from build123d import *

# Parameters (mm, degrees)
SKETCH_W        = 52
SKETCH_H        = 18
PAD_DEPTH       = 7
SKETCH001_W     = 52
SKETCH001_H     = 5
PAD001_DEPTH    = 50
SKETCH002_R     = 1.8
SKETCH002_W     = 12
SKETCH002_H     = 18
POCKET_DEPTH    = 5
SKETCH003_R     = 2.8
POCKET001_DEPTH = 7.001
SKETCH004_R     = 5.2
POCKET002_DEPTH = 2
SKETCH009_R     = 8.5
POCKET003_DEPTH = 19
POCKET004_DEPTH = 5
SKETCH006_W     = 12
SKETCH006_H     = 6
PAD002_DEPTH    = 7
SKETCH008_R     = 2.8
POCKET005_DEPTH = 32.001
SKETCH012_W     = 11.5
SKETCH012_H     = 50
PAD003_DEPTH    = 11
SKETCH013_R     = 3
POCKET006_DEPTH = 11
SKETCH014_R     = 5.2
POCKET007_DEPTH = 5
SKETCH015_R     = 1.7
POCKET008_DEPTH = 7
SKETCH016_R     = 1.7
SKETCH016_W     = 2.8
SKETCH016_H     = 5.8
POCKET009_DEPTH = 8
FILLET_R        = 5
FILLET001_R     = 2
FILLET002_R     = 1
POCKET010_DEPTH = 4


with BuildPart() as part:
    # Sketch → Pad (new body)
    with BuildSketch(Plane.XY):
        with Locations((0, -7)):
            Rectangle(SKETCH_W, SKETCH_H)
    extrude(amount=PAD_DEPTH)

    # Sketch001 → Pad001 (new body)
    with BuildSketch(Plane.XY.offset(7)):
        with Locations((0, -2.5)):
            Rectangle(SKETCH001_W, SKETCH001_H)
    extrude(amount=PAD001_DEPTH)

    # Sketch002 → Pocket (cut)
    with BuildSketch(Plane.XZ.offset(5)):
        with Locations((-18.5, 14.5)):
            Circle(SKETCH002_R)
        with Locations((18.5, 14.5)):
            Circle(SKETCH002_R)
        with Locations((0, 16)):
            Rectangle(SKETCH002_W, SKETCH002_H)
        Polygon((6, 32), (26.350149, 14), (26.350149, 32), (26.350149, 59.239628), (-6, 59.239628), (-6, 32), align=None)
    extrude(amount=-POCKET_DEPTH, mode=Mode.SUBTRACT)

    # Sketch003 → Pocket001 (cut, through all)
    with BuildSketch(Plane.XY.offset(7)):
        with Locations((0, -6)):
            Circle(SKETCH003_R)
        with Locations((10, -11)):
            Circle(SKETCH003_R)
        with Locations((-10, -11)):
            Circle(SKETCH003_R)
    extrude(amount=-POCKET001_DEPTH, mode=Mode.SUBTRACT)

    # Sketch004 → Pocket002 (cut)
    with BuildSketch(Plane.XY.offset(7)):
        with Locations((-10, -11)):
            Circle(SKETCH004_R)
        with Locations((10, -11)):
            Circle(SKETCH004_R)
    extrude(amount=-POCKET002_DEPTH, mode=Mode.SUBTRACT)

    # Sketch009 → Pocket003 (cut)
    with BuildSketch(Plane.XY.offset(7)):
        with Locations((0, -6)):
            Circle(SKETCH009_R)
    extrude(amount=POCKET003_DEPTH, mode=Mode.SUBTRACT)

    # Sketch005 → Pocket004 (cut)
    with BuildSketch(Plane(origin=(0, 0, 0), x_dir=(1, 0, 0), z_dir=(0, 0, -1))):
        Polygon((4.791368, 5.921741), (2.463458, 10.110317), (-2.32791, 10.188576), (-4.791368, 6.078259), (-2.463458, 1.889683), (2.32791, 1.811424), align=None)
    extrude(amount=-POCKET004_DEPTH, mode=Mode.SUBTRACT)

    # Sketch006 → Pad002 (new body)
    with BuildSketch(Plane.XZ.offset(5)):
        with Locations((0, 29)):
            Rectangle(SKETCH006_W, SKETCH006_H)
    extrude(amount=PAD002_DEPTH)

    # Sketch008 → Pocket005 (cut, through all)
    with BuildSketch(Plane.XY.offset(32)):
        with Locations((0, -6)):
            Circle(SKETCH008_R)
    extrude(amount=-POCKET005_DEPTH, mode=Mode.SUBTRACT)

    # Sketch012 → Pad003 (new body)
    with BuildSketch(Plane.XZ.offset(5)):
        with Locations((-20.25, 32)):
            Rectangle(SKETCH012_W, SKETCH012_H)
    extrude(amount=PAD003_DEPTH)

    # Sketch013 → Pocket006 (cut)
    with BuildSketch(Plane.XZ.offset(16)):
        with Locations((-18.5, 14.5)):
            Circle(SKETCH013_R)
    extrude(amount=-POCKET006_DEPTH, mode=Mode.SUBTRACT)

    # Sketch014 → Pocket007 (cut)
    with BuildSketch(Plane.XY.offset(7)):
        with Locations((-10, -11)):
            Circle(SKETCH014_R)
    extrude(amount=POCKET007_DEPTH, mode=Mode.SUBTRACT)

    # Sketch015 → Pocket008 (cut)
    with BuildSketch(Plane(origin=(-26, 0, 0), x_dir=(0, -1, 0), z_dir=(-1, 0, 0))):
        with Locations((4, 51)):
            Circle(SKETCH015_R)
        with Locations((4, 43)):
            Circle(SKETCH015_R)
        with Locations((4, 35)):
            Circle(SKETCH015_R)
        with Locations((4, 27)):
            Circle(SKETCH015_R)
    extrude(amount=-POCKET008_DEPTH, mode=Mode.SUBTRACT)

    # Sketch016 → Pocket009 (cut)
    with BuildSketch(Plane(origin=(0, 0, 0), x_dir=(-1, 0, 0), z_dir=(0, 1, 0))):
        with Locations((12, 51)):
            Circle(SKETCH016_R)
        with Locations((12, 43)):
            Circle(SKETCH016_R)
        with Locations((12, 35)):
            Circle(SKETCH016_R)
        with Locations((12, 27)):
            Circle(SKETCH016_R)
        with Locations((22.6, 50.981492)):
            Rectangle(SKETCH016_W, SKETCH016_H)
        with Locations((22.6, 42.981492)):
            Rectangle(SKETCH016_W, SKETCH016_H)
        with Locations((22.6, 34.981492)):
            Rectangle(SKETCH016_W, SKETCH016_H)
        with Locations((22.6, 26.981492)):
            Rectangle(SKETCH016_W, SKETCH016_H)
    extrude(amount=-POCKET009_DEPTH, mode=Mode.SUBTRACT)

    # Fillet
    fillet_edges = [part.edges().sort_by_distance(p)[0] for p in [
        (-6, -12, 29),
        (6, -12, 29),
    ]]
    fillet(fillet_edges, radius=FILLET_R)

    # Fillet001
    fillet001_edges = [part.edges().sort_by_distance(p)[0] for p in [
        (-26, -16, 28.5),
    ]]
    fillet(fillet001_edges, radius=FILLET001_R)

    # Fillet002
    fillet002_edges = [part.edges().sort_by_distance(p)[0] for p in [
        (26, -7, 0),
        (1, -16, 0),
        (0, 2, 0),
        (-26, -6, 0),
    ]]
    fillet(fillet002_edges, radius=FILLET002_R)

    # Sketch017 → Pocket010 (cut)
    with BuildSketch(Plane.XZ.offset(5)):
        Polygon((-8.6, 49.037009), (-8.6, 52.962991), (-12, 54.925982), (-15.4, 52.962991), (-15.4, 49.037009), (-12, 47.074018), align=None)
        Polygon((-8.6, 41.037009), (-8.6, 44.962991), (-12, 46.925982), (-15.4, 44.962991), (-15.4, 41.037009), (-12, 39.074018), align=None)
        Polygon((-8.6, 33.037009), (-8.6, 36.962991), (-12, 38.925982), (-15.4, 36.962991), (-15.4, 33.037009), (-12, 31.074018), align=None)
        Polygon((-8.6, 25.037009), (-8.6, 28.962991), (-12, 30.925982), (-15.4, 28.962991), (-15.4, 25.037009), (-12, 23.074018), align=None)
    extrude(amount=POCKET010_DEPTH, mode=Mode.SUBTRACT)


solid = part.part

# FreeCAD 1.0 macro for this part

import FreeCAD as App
import Part
import Sketcher
from FreeCAD import Vector
Q = App.Units.Quantity


def edges_at(feature, points):
    """Names of the edges that pass closest to the given points."""
    edges = feature.Shape.Edges
    near = lambda p: min(range(len(edges)), key=lambda i: edges[i].distToShape(Part.Vertex(*p))[0])
    return sorted({f"Edge{near(p) + 1}" for p in points})

doc = App.newDocument("Part")
body = doc.addObject("PartDesign::Body", "Body")

sketch1 = body.newObject("Sketcher::SketchObject", "Sketch")
sketch1.AttachmentSupport = (doc.getObject("XY_Plane"), [""])
sketch1.MapMode = "FlatFace"
sketch1.addGeometry(Part.LineSegment(Vector(-26, 2, 0), Vector(-26, -16, 0)), False)
sketch1.addGeometry(Part.LineSegment(Vector(-26, -16, 0), Vector(26, -16, 0)), False)
sketch1.addGeometry(Part.LineSegment(Vector(26, -16, 0), Vector(26, 2, 0)), False)
sketch1.addGeometry(Part.LineSegment(Vector(26, 2, 0), Vector(-26, 2, 0)), False)
sketch1.addConstraint(Sketcher.Constraint("Coincident", 0, 2, 1, 1))
sketch1.addConstraint(Sketcher.Constraint("Coincident", 1, 2, 2, 1))
sketch1.addConstraint(Sketcher.Constraint("Coincident", 2, 2, 3, 1))
sketch1.addConstraint(Sketcher.Constraint("Coincident", 3, 2, 0, 1))
sketch1.addConstraint(Sketcher.Constraint("Vertical", 0))
sketch1.addConstraint(Sketcher.Constraint("Horizontal", 1))
sketch1.addConstraint(Sketcher.Constraint("Vertical", 2))
sketch1.addConstraint(Sketcher.Constraint("Horizontal", 3))
sketch1.addConstraint(Sketcher.Constraint("DistanceX", 1, 1, 1, 2, 52.0))
sketch1.addConstraint(Sketcher.Constraint("DistanceY", 0, 2, 0, 1, 18.0))
sketch1.addConstraint(Sketcher.Constraint("DistanceX", 0, 2, -1, 1, 26.0))
sketch1.addConstraint(Sketcher.Constraint("DistanceY", 0, 2, -1, 1, 16.0))
pad1 = body.newObject("PartDesign::Pad", "Pad")
pad1.Profile = sketch1
pad1.Length = 7

sketch2 = body.newObject("Sketcher::SketchObject", "Sketch001")
sketch2.AttachmentSupport = (doc.getObject("XY_Plane"), [""])
sketch2.MapMode = "FlatFace"
sketch2.AttachmentOffset = App.Placement(Vector(0, 0, 7), App.Rotation())
sketch2.addGeometry(Part.LineSegment(Vector(-26, 0, 0), Vector(-26, -5, 0)), False)
sketch2.addGeometry(Part.LineSegment(Vector(-26, -5, 0), Vector(26, -5, 0)), False)
sketch2.addGeometry(Part.LineSegment(Vector(26, -5, 0), Vector(26, 0, 0)), False)
sketch2.addGeometry(Part.LineSegment(Vector(26, 0, 0), Vector(-26, 0, 0)), False)
sketch2.addConstraint(Sketcher.Constraint("Coincident", 0, 2, 1, 1))
sketch2.addConstraint(Sketcher.Constraint("Coincident", 1, 2, 2, 1))
sketch2.addConstraint(Sketcher.Constraint("Coincident", 2, 2, 3, 1))
sketch2.addConstraint(Sketcher.Constraint("Coincident", 3, 2, 0, 1))
sketch2.addConstraint(Sketcher.Constraint("Vertical", 0))
sketch2.addConstraint(Sketcher.Constraint("Horizontal", 1))
sketch2.addConstraint(Sketcher.Constraint("Vertical", 2))
sketch2.addConstraint(Sketcher.Constraint("Horizontal", 3))
sketch2.addConstraint(Sketcher.Constraint("Symmetric", 2, 2, 3, 2, -1, 1))
sketch2.addConstraint(Sketcher.Constraint("DistanceX", 1, 1, 1, 2, 52.0))
sketch2.addConstraint(Sketcher.Constraint("DistanceY", 0, 2, 0, 1, 5.0))
pad2 = body.newObject("PartDesign::Pad", "Pad001")
pad2.Profile = sketch2
pad2.Length = 50

sketch3 = body.newObject("Sketcher::SketchObject", "Sketch002")
sketch3.AttachmentSupport = (doc.getObject("XZ_Plane"), [""])
sketch3.MapMode = "FlatFace"
sketch3.AttachmentOffset = App.Placement(Vector(0, 0, 5), App.Rotation())
sketch3.addGeometry(Part.Circle(Vector(-18.5, 14.5, 0), Vector(0, 0, 1), 1.8), False)
sketch3.addGeometry(Part.Circle(Vector(18.5, 14.5, 0), Vector(0, 0, 1), 1.8), False)
sketch3.addGeometry(Part.LineSegment(Vector(-6, 25, 0), Vector(-6, 7, 0)), False)
sketch3.addGeometry(Part.LineSegment(Vector(-6, 7, 0), Vector(6, 7, 0)), False)
sketch3.addGeometry(Part.LineSegment(Vector(6, 7, 0), Vector(6, 25, 0)), False)
sketch3.addGeometry(Part.LineSegment(Vector(6, 25, 0), Vector(-6, 25, 0)), False)
sketch3.addGeometry(Part.LineSegment(Vector(6, 32, 0), Vector(26.4, 14, 0)), False)
sketch3.addGeometry(Part.LineSegment(Vector(26.4, 14, 0), Vector(26.4, 59.2, 0)), False)
sketch3.addGeometry(Part.LineSegment(Vector(26.4, 59.2, 0), Vector(-6, 59.2, 0)), False)
sketch3.addGeometry(Part.LineSegment(Vector(-6, 59.2, 0), Vector(-6, 32, 0)), False)
sketch3.addGeometry(Part.LineSegment(Vector(-6, 32, 0), Vector(6, 32, 0)), False)
sketch3.addConstraint(Sketcher.Constraint("Coincident", 2, 2, 3, 1))
sketch3.addConstraint(Sketcher.Constraint("Coincident", 3, 2, 4, 1))
sketch3.addConstraint(Sketcher.Constraint("Coincident", 4, 2, 5, 1))
sketch3.addConstraint(Sketcher.Constraint("Coincident", 5, 2, 2, 1))
sketch3.addConstraint(Sketcher.Constraint("Coincident", 6, 2, 7, 1))
sketch3.addConstraint(Sketcher.Constraint("Coincident", 7, 2, 8, 1))
sketch3.addConstraint(Sketcher.Constraint("Coincident", 8, 2, 9, 1))
sketch3.addConstraint(Sketcher.Constraint("Coincident", 9, 2, 10, 1))
sketch3.addConstraint(Sketcher.Constraint("Coincident", 10, 2, 6, 1))
sketch3.addConstraint(Sketcher.Constraint("Vertical", 2))
sketch3.addConstraint(Sketcher.Constraint("Horizontal", 3))
sketch3.addConstraint(Sketcher.Constraint("Vertical", 4))
sketch3.addConstraint(Sketcher.Constraint("Horizontal", 5))
sketch3.addConstraint(Sketcher.Constraint("Vertical", 7))
sketch3.addConstraint(Sketcher.Constraint("Horizontal", 8))
sketch3.addConstraint(Sketcher.Constraint("Vertical", 9))
sketch3.addConstraint(Sketcher.Constraint("Horizontal", 10))
sketch3.addConstraint(Sketcher.Constraint("Equal", 0, 1))
sketch3.addConstraint(Sketcher.Constraint("Symmetric", 0, 3, 1, 3, -2))
sketch3.addConstraint(Sketcher.Constraint("Vertical", 5, 2, 8, 2))
sketch3.addConstraint(Sketcher.Constraint("Vertical", 4, 2, 10, 2))
sketch3.addConstraint(Sketcher.Constraint("Diameter", 0, 3.6))
sketch3.addConstraint(Sketcher.Constraint("DistanceX", 3, 1, 3, 2, 12.0))
sketch3.addConstraint(Sketcher.Constraint("DistanceY", 2, 2, 2, 1, 18.0))
sketch3.addConstraint(Sketcher.Constraint("DistanceX", 2, 2, -1, 1, 6.0))
sketch3.addConstraint(Sketcher.Constraint("DistanceY", -1, 1, 2, 2, 7.0))
sketch3.addConstraint(Sketcher.Constraint("DistanceY", -1, 1, 6, 2, 14.0))
sketch3.addConstraint(Sketcher.Constraint("DistanceY", -1, 1, 9, 2, 32.0))
sketch3.addConstraint(Sketcher.Constraint("DistanceX", 0, 3, 1, 3, 37.0))
sketch3.addConstraint(Sketcher.Constraint("DistanceY", -1, 1, 0, 3, 14.5))
sketch3.addConstraint(Sketcher.Constraint("DistanceX", 8, 2, 8, 1, 32.350149))
sketch3.addConstraint(Sketcher.Constraint("DistanceY", 7, 1, 7, 2, 45.239628))
pocket1 = body.newObject("PartDesign::Pocket", "Pocket")
pocket1.Profile = sketch3
pocket1.Length = 5

sketch4 = body.newObject("Sketcher::SketchObject", "Sketch003")
sketch4.AttachmentSupport = (doc.getObject("XY_Plane"), [""])
sketch4.MapMode = "FlatFace"
sketch4.AttachmentOffset = App.Placement(Vector(0, 0, 7), App.Rotation())
sketch4.addGeometry(Part.Circle(Vector(0, -6, 0), Vector(0, 0, 1), 2.8), False)
sketch4.addGeometry(Part.Circle(Vector(10, -11, 0), Vector(0, 0, 1), 2.8), False)
sketch4.addGeometry(Part.Circle(Vector(-10, -11, 0), Vector(0, 0, 1), 2.8), False)
sketch4.addConstraint(Sketcher.Constraint("Equal", 0, 1))
sketch4.addConstraint(Sketcher.Constraint("Equal", 1, 2))
sketch4.addConstraint(Sketcher.Constraint("Symmetric", 1, 3, 2, 3, -2))
sketch4.addConstraint(Sketcher.Constraint("PointOnObject", 0, 3, -2))
sketch4.addConstraint(Sketcher.Constraint("Diameter", 0, 5.6))
sketch4.addConstraint(Sketcher.Constraint("DistanceY", 0, 3, -1, 1, 6.0))
sketch4.addConstraint(Sketcher.Constraint("DistanceX", -1, 1, 1, 3, 10.0))
sketch4.addConstraint(Sketcher.Constraint("DistanceY", 1, 3, -1, 1, 11.0))
pocket2 = body.newObject("PartDesign::Pocket", "Pocket001")
pocket2.Profile = sketch4
pocket2.Type = "ThroughAll"

sketch5 = body.newObject("Sketcher::SketchObject", "Sketch004")
sketch5.AttachmentSupport = (doc.getObject("XY_Plane"), [""])
sketch5.MapMode = "FlatFace"
sketch5.AttachmentOffset = App.Placement(Vector(0, 0, 7), App.Rotation())
sketch5.addGeometry(Part.Circle(Vector(-10, -11, 0), Vector(0, 0, 1), 5), False)
sketch5.addGeometry(Part.Circle(Vector(10, -11, 0), Vector(0, 0, 1), 5), False)
sketch5.addConstraint(Sketcher.Constraint("Equal", 0, 1))
sketch5.addConstraint(Sketcher.Constraint("Symmetric", 0, 3, 1, 3, -2))
sketch5.addConstraint(Sketcher.Constraint("Diameter", 0, 10.4))
sketch5.addConstraint(Sketcher.Constraint("DistanceX", 0, 3, -1, 1, 10.0))
sketch5.addConstraint(Sketcher.Constraint("DistanceY", 0, 3, -1, 1, 11.0))
pocket3 = body.newObject("PartDesign::Pocket", "Pocket002")
pocket3.Profile = sketch5
pocket3.Length = 2

sketch6 = body.newObject("Sketcher::SketchObject", "Sketch005")
sketch6.AttachmentSupport = (doc.getObject("XY_Plane"), [""])
sketch6.MapMode = "FlatFace"
sketch6.AttachmentOffset = App.Placement(Vector(0, 0, 7), App.Rotation())
sketch6.addGeometry(Part.Circle(Vector(0, -6, 0), Vector(0, 0, 1), 8), False)
sketch6.addConstraint(Sketcher.Constraint("PointOnObject", 0, 3, -2))
sketch6.addConstraint(Sketcher.Constraint("Diameter", 0, 17.0))
sketch6.addConstraint(Sketcher.Constraint("DistanceY", 0, 3, -1, 1, 6.0))
pocket4 = body.newObject("PartDesign::Pocket", "Pocket003")
pocket4.Profile = sketch6
pocket4.Length = 19
pocket4.Reversed = True

sketch7 = body.newObject("Sketcher::SketchObject", "Sketch006")
sketch7.AttachmentSupport = (doc.getObject("XY_Plane"), [""])
sketch7.MapMode = "FlatFace"
sketch7.addGeometry(Part.LineSegment(Vector(4.8, -5.9, 0), Vector(2.5, -10.1, 0)), False)
sketch7.addGeometry(Part.LineSegment(Vector(2.5, -10.1, 0), Vector(-2.3, -10.2, 0)), False)
sketch7.addGeometry(Part.LineSegment(Vector(-2.3, -10.2, 0), Vector(-4.8, -6.1, 0)), False)
sketch7.addGeometry(Part.LineSegment(Vector(-4.8, -6.1, 0), Vector(-2.5, -1.9, 0)), False)
sketch7.addGeometry(Part.LineSegment(Vector(-2.5, -1.9, 0), Vector(2.3, -1.8, 0)), False)
sketch7.addGeometry(Part.LineSegment(Vector(2.3, -1.8, 0), Vector(4.8, -5.9, 0)), False)
sketch7.addConstraint(Sketcher.Constraint("Coincident", 0, 2, 1, 1))
sketch7.addConstraint(Sketcher.Constraint("Coincident", 1, 2, 2, 1))
sketch7.addConstraint(Sketcher.Constraint("Coincident", 2, 2, 3, 1))
sketch7.addConstraint(Sketcher.Constraint("Coincident", 3, 2, 4, 1))
sketch7.addConstraint(Sketcher.Constraint("Coincident", 4, 2, 5, 1))
sketch7.addConstraint(Sketcher.Constraint("Coincident", 5, 2, 0, 1))
sketch7.addConstraint(Sketcher.Constraint("Parallel", 0, 3))
sketch7.addConstraint(Sketcher.Constraint("Parallel", 1, 4))
sketch7.addConstraint(Sketcher.Constraint("Parallel", 2, 5))
sketch7.addConstraint(Sketcher.Constraint("Equal", 0, 1))
sketch7.addConstraint(Sketcher.Constraint("Equal", 1, 2))
sketch7.addConstraint(Sketcher.Constraint("Equal", 2, 3))
sketch7.addConstraint(Sketcher.Constraint("DistanceX", -1, 1, 0, 2, 2.463458))
sketch7.addConstraint(Sketcher.Constraint("DistanceX", 1, 2, -1, 1, 2.32791))
sketch7.addConstraint(Sketcher.Constraint("DistanceX", 2, 2, -1, 1, 4.791368))
sketch7.addConstraint(Sketcher.Constraint("DistanceY", 2, 2, -1, 1, 6.078259))
sketch7.addConstraint(Sketcher.Constraint("DistanceX", 3, 2, -1, 1, 2.463458))
sketch7.addConstraint(Sketcher.Constraint("DistanceY", 5, 2, -1, 1, 5.921741))
pocket5 = body.newObject("PartDesign::Pocket", "Pocket004")
pocket5.Profile = sketch7
pocket5.Length = 5
pocket5.Reversed = True

sketch8 = body.newObject("Sketcher::SketchObject", "Sketch007")
sketch8.AttachmentSupport = (doc.getObject("XZ_Plane"), [""])
sketch8.MapMode = "FlatFace"
sketch8.AttachmentOffset = App.Placement(Vector(0, 0, 5), App.Rotation())
sketch8.addGeometry(Part.LineSegment(Vector(-6, 32, 0), Vector(-6, 26, 0)), False)
sketch8.addGeometry(Part.LineSegment(Vector(-6, 26, 0), Vector(6, 26, 0)), False)
sketch8.addGeometry(Part.LineSegment(Vector(6, 26, 0), Vector(6, 32, 0)), False)
sketch8.addGeometry(Part.LineSegment(Vector(6, 32, 0), Vector(-6, 32, 0)), False)
sketch8.addConstraint(Sketcher.Constraint("Coincident", 0, 2, 1, 1))
sketch8.addConstraint(Sketcher.Constraint("Coincident", 1, 2, 2, 1))
sketch8.addConstraint(Sketcher.Constraint("Coincident", 2, 2, 3, 1))
sketch8.addConstraint(Sketcher.Constraint("Coincident", 3, 2, 0, 1))
sketch8.addConstraint(Sketcher.Constraint("Vertical", 0))
sketch8.addConstraint(Sketcher.Constraint("Horizontal", 1))
sketch8.addConstraint(Sketcher.Constraint("Vertical", 2))
sketch8.addConstraint(Sketcher.Constraint("Horizontal", 3))
sketch8.addConstraint(Sketcher.Constraint("DistanceX", 1, 1, 1, 2, 12.0))
sketch8.addConstraint(Sketcher.Constraint("DistanceY", 0, 2, 0, 1, 6.0))
sketch8.addConstraint(Sketcher.Constraint("DistanceX", 0, 2, -1, 1, 6.0))
sketch8.addConstraint(Sketcher.Constraint("DistanceY", -1, 1, 0, 2, 26.0))
pad3 = body.newObject("PartDesign::Pad", "Pad002")
pad3.Profile = sketch8
pad3.Length = 7

sketch9 = body.newObject("Sketcher::SketchObject", "Sketch008")
sketch9.AttachmentSupport = (doc.getObject("XY_Plane"), [""])
sketch9.MapMode = "FlatFace"
sketch9.AttachmentOffset = App.Placement(Vector(0, 0, 32), App.Rotation())
sketch9.addGeometry(Part.Circle(Vector(0, -6, 0), Vector(0, 0, 1), 2.8), False)
sketch9.addConstraint(Sketcher.Constraint("PointOnObject", 0, 3, -2))
sketch9.addConstraint(Sketcher.Constraint("Diameter", 0, 5.6))
sketch9.addConstraint(Sketcher.Constraint("DistanceY", 0, 3, -1, 1, 6.0))
pocket6 = body.newObject("PartDesign::Pocket", "Pocket005")
pocket6.Profile = sketch9
pocket6.Type = "ThroughAll"

sketch10 = body.newObject("Sketcher::SketchObject", "Sketch009")
sketch10.AttachmentSupport = (doc.getObject("XZ_Plane"), [""])
sketch10.MapMode = "FlatFace"
sketch10.AttachmentOffset = App.Placement(Vector(0, 0, 5), App.Rotation())
sketch10.addGeometry(Part.LineSegment(Vector(-26, 57, 0), Vector(-26, 7, 0)), False)
sketch10.addGeometry(Part.LineSegment(Vector(-26, 7, 0), Vector(-14, 7, 0)), False)
sketch10.addGeometry(Part.LineSegment(Vector(-14, 7, 0), Vector(-14, 57, 0)), False)
sketch10.addGeometry(Part.LineSegment(Vector(-14, 57, 0), Vector(-26, 57, 0)), False)
sketch10.addConstraint(Sketcher.Constraint("Coincident", 0, 2, 1, 1))
sketch10.addConstraint(Sketcher.Constraint("Coincident", 1, 2, 2, 1))
sketch10.addConstraint(Sketcher.Constraint("Coincident", 2, 2, 3, 1))
sketch10.addConstraint(Sketcher.Constraint("Coincident", 3, 2, 0, 1))
sketch10.addConstraint(Sketcher.Constraint("Vertical", 0))
sketch10.addConstraint(Sketcher.Constraint("Horizontal", 1))
sketch10.addConstraint(Sketcher.Constraint("Vertical", 2))
sketch10.addConstraint(Sketcher.Constraint("Horizontal", 3))
sketch10.addConstraint(Sketcher.Constraint("DistanceY", 0, 2, 0, 1, 50.0))
sketch10.addConstraint(Sketcher.Constraint("DistanceX", 1, 1, 1, 2, 11.5))
sketch10.addConstraint(Sketcher.Constraint("DistanceX", 0, 2, -1, 1, 26.0))
sketch10.addConstraint(Sketcher.Constraint("DistanceY", -1, 1, 0, 2, 7.0))
pad4 = body.newObject("PartDesign::Pad", "Pad003")
pad4.Profile = sketch10
pad4.Length = 11

sketch11 = body.newObject("Sketcher::SketchObject", "Sketch010")
sketch11.AttachmentSupport = (doc.getObject("XZ_Plane"), [""])
sketch11.MapMode = "FlatFace"
sketch11.AttachmentOffset = App.Placement(Vector(0, 0, 16), App.Rotation())
sketch11.addGeometry(Part.Circle(Vector(-18.5, 14.5, 0), Vector(0, 0, 1), 3), False)
sketch11.addConstraint(Sketcher.Constraint("Diameter", 0, 6.0))
sketch11.addConstraint(Sketcher.Constraint("DistanceX", 0, 3, -1, 1, 18.5))
sketch11.addConstraint(Sketcher.Constraint("DistanceY", -1, 1, 0, 3, 14.5))
pocket7 = body.newObject("PartDesign::Pocket", "Pocket006")
pocket7.Profile = sketch11
pocket7.Length = 11

sketch12 = body.newObject("Sketcher::SketchObject", "Sketch011")
sketch12.AttachmentSupport = (doc.getObject("XY_Plane"), [""])
sketch12.MapMode = "FlatFace"
sketch12.AttachmentOffset = App.Placement(Vector(0, 0, 7), App.Rotation())
sketch12.addGeometry(Part.Circle(Vector(-10, -11, 0), Vector(0, 0, 1), 5), False)
sketch12.addConstraint(Sketcher.Constraint("Diameter", 0, 10.4))
sketch12.addConstraint(Sketcher.Constraint("DistanceX", 0, 3, -1, 1, 10.0))
sketch12.addConstraint(Sketcher.Constraint("DistanceY", 0, 3, -1, 1, 11.0))
pocket8 = body.newObject("PartDesign::Pocket", "Pocket007")
pocket8.Profile = sketch12
pocket8.Length = 5
pocket8.Reversed = True

sketch13 = body.newObject("Sketcher::SketchObject", "Sketch012")
sketch13.AttachmentSupport = (doc.getObject("YZ_Plane"), [""])
sketch13.MapMode = "FlatFace"
sketch13.AttachmentOffset = App.Placement(Vector(0, 0, -26), App.Rotation())
sketch13.addGeometry(Part.Circle(Vector(-4, 51, 0), Vector(0, 0, 1), 1.7), False)
sketch13.addGeometry(Part.Circle(Vector(-4, 43, 0), Vector(0, 0, 1), 1.7), False)
sketch13.addGeometry(Part.Circle(Vector(-4, 35, 0), Vector(0, 0, 1), 1.7), False)
sketch13.addGeometry(Part.Circle(Vector(-4, 27, 0), Vector(0, 0, 1), 1.7), False)
sketch13.addConstraint(Sketcher.Constraint("Equal", 0, 1))
sketch13.addConstraint(Sketcher.Constraint("Equal", 1, 2))
sketch13.addConstraint(Sketcher.Constraint("Equal", 2, 3))
sketch13.addConstraint(Sketcher.Constraint("Vertical", 0, 3, 1, 3))
sketch13.addConstraint(Sketcher.Constraint("Vertical", 1, 3, 2, 3))
sketch13.addConstraint(Sketcher.Constraint("Vertical", 2, 3, 3, 3))
sketch13.addConstraint(Sketcher.Constraint("Diameter", 0, 3.4))
sketch13.addConstraint(Sketcher.Constraint("DistanceX", 0, 3, -1, 1, 4.0))
sketch13.addConstraint(Sketcher.Constraint("DistanceY", -1, 1, 0, 3, 51.0))
sketch13.addConstraint(Sketcher.Constraint("DistanceY", -1, 1, 1, 3, 43.0))
sketch13.addConstraint(Sketcher.Constraint("DistanceY", -1, 1, 2, 3, 35.0))
sketch13.addConstraint(Sketcher.Constraint("DistanceY", -1, 1, 3, 3, 27.0))
pocket9 = body.newObject("PartDesign::Pocket", "Pocket008")
pocket9.Profile = sketch13
pocket9.Length = 7
pocket9.Reversed = True

sketch14 = body.newObject("Sketcher::SketchObject", "Sketch013")
sketch14.AttachmentSupport = (doc.getObject("XZ_Plane"), [""])
sketch14.MapMode = "FlatFace"
sketch14.addGeometry(Part.Circle(Vector(-12, 51, 0), Vector(0, 0, 1), 1.7), False)
sketch14.addGeometry(Part.Circle(Vector(-12, 43, 0), Vector(0, 0, 1), 1.7), False)
sketch14.addGeometry(Part.Circle(Vector(-12, 35, 0), Vector(0, 0, 1), 1.7), False)
sketch14.addGeometry(Part.Circle(Vector(-12, 27, 0), Vector(0, 0, 1), 1.7), False)
sketch14.addGeometry(Part.LineSegment(Vector(-21.2, 53.9, 0), Vector(-21.2, 48.1, 0)), False)
sketch14.addGeometry(Part.LineSegment(Vector(-21.2, 48.1, 0), Vector(-24, 48.1, 0)), False)
sketch14.addGeometry(Part.LineSegment(Vector(-24, 48.1, 0), Vector(-24, 53.9, 0)), False)
sketch14.addGeometry(Part.LineSegment(Vector(-24, 53.9, 0), Vector(-21.2, 53.9, 0)), False)
sketch14.addGeometry(Part.LineSegment(Vector(-21.2, 45.9, 0), Vector(-21.2, 40.1, 0)), False)
sketch14.addGeometry(Part.LineSegment(Vector(-21.2, 40.1, 0), Vector(-24, 40.1, 0)), False)
sketch14.addGeometry(Part.LineSegment(Vector(-24, 40.1, 0), Vector(-24, 45.9, 0)), False)
sketch14.addGeometry(Part.LineSegment(Vector(-24, 45.9, 0), Vector(-21.2, 45.9, 0)), False)
sketch14.addGeometry(Part.LineSegment(Vector(-21.2, 37.9, 0), Vector(-21.2, 32.1, 0)), False)
sketch14.addGeometry(Part.LineSegment(Vector(-21.2, 32.1, 0), Vector(-24, 32.1, 0)), False)
sketch14.addGeometry(Part.LineSegment(Vector(-24, 32.1, 0), Vector(-24, 37.9, 0)), False)
sketch14.addGeometry(Part.LineSegment(Vector(-24, 37.9, 0), Vector(-21.2, 37.9, 0)), False)
sketch14.addGeometry(Part.LineSegment(Vector(-21.2, 29.9, 0), Vector(-21.2, 24.1, 0)), False)
sketch14.addGeometry(Part.LineSegment(Vector(-21.2, 24.1, 0), Vector(-24, 24.1, 0)), False)
sketch14.addGeometry(Part.LineSegment(Vector(-24, 24.1, 0), Vector(-24, 29.9, 0)), False)
sketch14.addGeometry(Part.LineSegment(Vector(-24, 29.9, 0), Vector(-21.2, 29.9, 0)), False)
sketch14.addConstraint(Sketcher.Constraint("Coincident", 4, 2, 5, 1))
sketch14.addConstraint(Sketcher.Constraint("Coincident", 5, 2, 6, 1))
sketch14.addConstraint(Sketcher.Constraint("Coincident", 6, 2, 7, 1))
sketch14.addConstraint(Sketcher.Constraint("Coincident", 7, 2, 4, 1))
sketch14.addConstraint(Sketcher.Constraint("Coincident", 8, 2, 9, 1))
sketch14.addConstraint(Sketcher.Constraint("Coincident", 9, 2, 10, 1))
sketch14.addConstraint(Sketcher.Constraint("Coincident", 10, 2, 11, 1))
sketch14.addConstraint(Sketcher.Constraint("Coincident", 11, 2, 8, 1))
sketch14.addConstraint(Sketcher.Constraint("Coincident", 12, 2, 13, 1))
sketch14.addConstraint(Sketcher.Constraint("Coincident", 13, 2, 14, 1))
sketch14.addConstraint(Sketcher.Constraint("Coincident", 14, 2, 15, 1))
sketch14.addConstraint(Sketcher.Constraint("Coincident", 15, 2, 12, 1))
sketch14.addConstraint(Sketcher.Constraint("Coincident", 16, 2, 17, 1))
sketch14.addConstraint(Sketcher.Constraint("Coincident", 17, 2, 18, 1))
sketch14.addConstraint(Sketcher.Constraint("Coincident", 18, 2, 19, 1))
sketch14.addConstraint(Sketcher.Constraint("Coincident", 19, 2, 16, 1))
sketch14.addConstraint(Sketcher.Constraint("Vertical", 4))
sketch14.addConstraint(Sketcher.Constraint("Horizontal", 5))
sketch14.addConstraint(Sketcher.Constraint("Vertical", 6))
sketch14.addConstraint(Sketcher.Constraint("Horizontal", 7))
sketch14.addConstraint(Sketcher.Constraint("Vertical", 8))
sketch14.addConstraint(Sketcher.Constraint("Horizontal", 9))
sketch14.addConstraint(Sketcher.Constraint("Vertical", 10))
sketch14.addConstraint(Sketcher.Constraint("Horizontal", 11))
sketch14.addConstraint(Sketcher.Constraint("Vertical", 12))
sketch14.addConstraint(Sketcher.Constraint("Horizontal", 13))
sketch14.addConstraint(Sketcher.Constraint("Vertical", 14))
sketch14.addConstraint(Sketcher.Constraint("Horizontal", 15))
sketch14.addConstraint(Sketcher.Constraint("Vertical", 16))
sketch14.addConstraint(Sketcher.Constraint("Horizontal", 17))
sketch14.addConstraint(Sketcher.Constraint("Vertical", 18))
sketch14.addConstraint(Sketcher.Constraint("Horizontal", 19))
sketch14.addConstraint(Sketcher.Constraint("Equal", 0, 1))
sketch14.addConstraint(Sketcher.Constraint("Equal", 1, 2))
sketch14.addConstraint(Sketcher.Constraint("Equal", 2, 3))
sketch14.addConstraint(Sketcher.Constraint("Vertical", 0, 3, 1, 3))
sketch14.addConstraint(Sketcher.Constraint("Vertical", 1, 3, 2, 3))
sketch14.addConstraint(Sketcher.Constraint("Vertical", 2, 3, 3, 3))
sketch14.addConstraint(Sketcher.Constraint("Vertical", 7, 2, 8, 2))
sketch14.addConstraint(Sketcher.Constraint("Vertical", 6, 2, 9, 2))
sketch14.addConstraint(Sketcher.Constraint("Vertical", 11, 2, 12, 2))
sketch14.addConstraint(Sketcher.Constraint("Vertical", 10, 2, 13, 2))
sketch14.addConstraint(Sketcher.Constraint("Vertical", 15, 2, 16, 2))
sketch14.addConstraint(Sketcher.Constraint("Vertical", 14, 2, 17, 2))
sketch14.addConstraint(Sketcher.Constraint("Equal", 6, 8))
sketch14.addConstraint(Sketcher.Constraint("Equal", 10, 12))
sketch14.addConstraint(Sketcher.Constraint("Equal", 14, 16))
sketch14.addConstraint(Sketcher.Constraint("Diameter", 0, 3.4))
sketch14.addConstraint(Sketcher.Constraint("DistanceX", 5, 2, 5, 1, 2.8))
sketch14.addConstraint(Sketcher.Constraint("DistanceY", 4, 2, 4, 1, 5.8))
sketch14.addConstraint(Sketcher.Constraint("DistanceX", 0, 3, -1, 1, 12.0))
sketch14.addConstraint(Sketcher.Constraint("DistanceY", -1, 1, 0, 3, 51.0))
sketch14.addConstraint(Sketcher.Constraint("DistanceY", -1, 1, 1, 3, 43.0))
sketch14.addConstraint(Sketcher.Constraint("DistanceY", -1, 1, 2, 3, 35.0))
sketch14.addConstraint(Sketcher.Constraint("DistanceY", -1, 1, 3, 3, 27.0))
sketch14.addConstraint(Sketcher.Constraint("DistanceX", 5, 2, -1, 1, 24.0))
sketch14.addConstraint(Sketcher.Constraint("DistanceY", 8, 2, 4, 2, 8.0))
sketch14.addConstraint(Sketcher.Constraint("DistanceY", 12, 2, 8, 2, 8.0))
sketch14.addConstraint(Sketcher.Constraint("DistanceY", 16, 2, 12, 2, 8.0))
sketch14.addConstraint(Sketcher.Constraint("DistanceY", -1, 1, 4, 2, 48.081492))
pocket10 = body.newObject("PartDesign::Pocket", "Pocket009")
pocket10.Profile = sketch14
pocket10.Length = 8
pocket10.Reversed = True
doc.recompute()

fillet = body.newObject("PartDesign::Fillet", "Fillet")
fillet.Base = (pocket10, edges_at(pocket10, [(-6, -12, 29), (6, -12, 29)]))
fillet.Radius = 5
doc.recompute()

fillet2 = body.newObject("PartDesign::Fillet", "Fillet001")
fillet2.Base = (fillet, edges_at(fillet, [(-26, -16, 28.5)]))
fillet2.Radius = 2
doc.recompute()

fillet3 = body.newObject("PartDesign::Fillet", "Fillet002")
fillet3.Base = (fillet2, edges_at(fillet2, [
    (26, -7, 0),
    (1, -16, 0),
    (0, 2, 0),
    (-26, -6, 0),
]))
fillet3.Radius = 1

sketch15 = body.newObject("Sketcher::SketchObject", "Sketch014")
sketch15.AttachmentSupport = (doc.getObject("XZ_Plane"), [""])
sketch15.MapMode = "FlatFace"
sketch15.AttachmentOffset = App.Placement(Vector(0, 0, 5), App.Rotation())
sketch15.addGeometry(Part.LineSegment(Vector(-8.6, 49, 0), Vector(-8.6, 53, 0)), False)
sketch15.addGeometry(Part.LineSegment(Vector(-8.6, 53, 0), Vector(-12, 54.9, 0)), False)
sketch15.addGeometry(Part.LineSegment(Vector(-12, 54.9, 0), Vector(-15.4, 53, 0)), False)
sketch15.addGeometry(Part.LineSegment(Vector(-15.4, 53, 0), Vector(-15.4, 49, 0)), False)
sketch15.addGeometry(Part.LineSegment(Vector(-15.4, 49, 0), Vector(-12, 47.1, 0)), False)
sketch15.addGeometry(Part.LineSegment(Vector(-12, 47.1, 0), Vector(-8.6, 49, 0)), False)
sketch15.addGeometry(Part.LineSegment(Vector(-8.6, 41, 0), Vector(-8.6, 45, 0)), False)
sketch15.addGeometry(Part.LineSegment(Vector(-8.6, 45, 0), Vector(-12, 46.9, 0)), False)
sketch15.addGeometry(Part.LineSegment(Vector(-12, 46.9, 0), Vector(-15.4, 45, 0)), False)
sketch15.addGeometry(Part.LineSegment(Vector(-15.4, 45, 0), Vector(-15.4, 41, 0)), False)
sketch15.addGeometry(Part.LineSegment(Vector(-15.4, 41, 0), Vector(-12, 39.1, 0)), False)
sketch15.addGeometry(Part.LineSegment(Vector(-12, 39.1, 0), Vector(-8.6, 41, 0)), False)
sketch15.addGeometry(Part.LineSegment(Vector(-8.6, 33, 0), Vector(-8.6, 37, 0)), False)
sketch15.addGeometry(Part.LineSegment(Vector(-8.6, 37, 0), Vector(-12, 38.9, 0)), False)
sketch15.addGeometry(Part.LineSegment(Vector(-12, 38.9, 0), Vector(-15.4, 37, 0)), False)
sketch15.addGeometry(Part.LineSegment(Vector(-15.4, 37, 0), Vector(-15.4, 33, 0)), False)
sketch15.addGeometry(Part.LineSegment(Vector(-15.4, 33, 0), Vector(-12, 31.1, 0)), False)
sketch15.addGeometry(Part.LineSegment(Vector(-12, 31.1, 0), Vector(-8.6, 33, 0)), False)
sketch15.addGeometry(Part.LineSegment(Vector(-8.6, 25, 0), Vector(-8.6, 29, 0)), False)
sketch15.addGeometry(Part.LineSegment(Vector(-8.6, 29, 0), Vector(-12, 30.9, 0)), False)
sketch15.addGeometry(Part.LineSegment(Vector(-12, 30.9, 0), Vector(-15.4, 29, 0)), False)
sketch15.addGeometry(Part.LineSegment(Vector(-15.4, 29, 0), Vector(-15.4, 25, 0)), False)
sketch15.addGeometry(Part.LineSegment(Vector(-15.4, 25, 0), Vector(-12, 23.1, 0)), False)
sketch15.addGeometry(Part.LineSegment(Vector(-12, 23.1, 0), Vector(-8.6, 25, 0)), False)
sketch15.addConstraint(Sketcher.Constraint("Coincident", 0, 2, 1, 1))
sketch15.addConstraint(Sketcher.Constraint("Coincident", 1, 2, 2, 1))
sketch15.addConstraint(Sketcher.Constraint("Coincident", 2, 2, 3, 1))
sketch15.addConstraint(Sketcher.Constraint("Coincident", 3, 2, 4, 1))
sketch15.addConstraint(Sketcher.Constraint("Coincident", 4, 2, 5, 1))
sketch15.addConstraint(Sketcher.Constraint("Coincident", 5, 2, 0, 1))
sketch15.addConstraint(Sketcher.Constraint("Coincident", 6, 2, 7, 1))
sketch15.addConstraint(Sketcher.Constraint("Coincident", 7, 2, 8, 1))
sketch15.addConstraint(Sketcher.Constraint("Coincident", 8, 2, 9, 1))
sketch15.addConstraint(Sketcher.Constraint("Coincident", 9, 2, 10, 1))
sketch15.addConstraint(Sketcher.Constraint("Coincident", 10, 2, 11, 1))
sketch15.addConstraint(Sketcher.Constraint("Coincident", 11, 2, 6, 1))
sketch15.addConstraint(Sketcher.Constraint("Coincident", 12, 2, 13, 1))
sketch15.addConstraint(Sketcher.Constraint("Coincident", 13, 2, 14, 1))
sketch15.addConstraint(Sketcher.Constraint("Coincident", 14, 2, 15, 1))
sketch15.addConstraint(Sketcher.Constraint("Coincident", 15, 2, 16, 1))
sketch15.addConstraint(Sketcher.Constraint("Coincident", 16, 2, 17, 1))
sketch15.addConstraint(Sketcher.Constraint("Coincident", 17, 2, 12, 1))
sketch15.addConstraint(Sketcher.Constraint("Coincident", 18, 2, 19, 1))
sketch15.addConstraint(Sketcher.Constraint("Coincident", 19, 2, 20, 1))
sketch15.addConstraint(Sketcher.Constraint("Coincident", 20, 2, 21, 1))
sketch15.addConstraint(Sketcher.Constraint("Coincident", 21, 2, 22, 1))
sketch15.addConstraint(Sketcher.Constraint("Coincident", 22, 2, 23, 1))
sketch15.addConstraint(Sketcher.Constraint("Coincident", 23, 2, 18, 1))
sketch15.addConstraint(Sketcher.Constraint("Vertical", 0))
sketch15.addConstraint(Sketcher.Constraint("Vertical", 3))
sketch15.addConstraint(Sketcher.Constraint("Vertical", 6))
sketch15.addConstraint(Sketcher.Constraint("Vertical", 9))
sketch15.addConstraint(Sketcher.Constraint("Vertical", 12))
sketch15.addConstraint(Sketcher.Constraint("Vertical", 15))
sketch15.addConstraint(Sketcher.Constraint("Vertical", 18))
sketch15.addConstraint(Sketcher.Constraint("Vertical", 21))
sketch15.addConstraint(Sketcher.Constraint("Parallel", 1, 4))
sketch15.addConstraint(Sketcher.Constraint("Parallel", 2, 5))
sketch15.addConstraint(Sketcher.Constraint("Parallel", 4, 7))
sketch15.addConstraint(Sketcher.Constraint("Parallel", 5, 8))
sketch15.addConstraint(Sketcher.Constraint("Parallel", 7, 10))
sketch15.addConstraint(Sketcher.Constraint("Parallel", 8, 11))
sketch15.addConstraint(Sketcher.Constraint("Parallel", 10, 13))
sketch15.addConstraint(Sketcher.Constraint("Parallel", 11, 14))
sketch15.addConstraint(Sketcher.Constraint("Parallel", 13, 16))
sketch15.addConstraint(Sketcher.Constraint("Parallel", 14, 17))
sketch15.addConstraint(Sketcher.Constraint("Parallel", 16, 19))
sketch15.addConstraint(Sketcher.Constraint("Parallel", 17, 20))
sketch15.addConstraint(Sketcher.Constraint("Parallel", 19, 22))
sketch15.addConstraint(Sketcher.Constraint("Parallel", 20, 23))
sketch15.addConstraint(Sketcher.Constraint("Horizontal", 0, 2, 2, 2))
sketch15.addConstraint(Sketcher.Constraint("Horizontal", 3, 2, 5, 2))
sketch15.addConstraint(Sketcher.Constraint("Horizontal", 6, 2, 8, 2))
sketch15.addConstraint(Sketcher.Constraint("Horizontal", 9, 2, 11, 2))
sketch15.addConstraint(Sketcher.Constraint("Horizontal", 12, 2, 14, 2))
sketch15.addConstraint(Sketcher.Constraint("Horizontal", 15, 2, 17, 2))
sketch15.addConstraint(Sketcher.Constraint("Horizontal", 18, 2, 20, 2))
sketch15.addConstraint(Sketcher.Constraint("Horizontal", 21, 2, 23, 2))
sketch15.addConstraint(Sketcher.Constraint("Vertical", 1, 2, 4, 2))
sketch15.addConstraint(Sketcher.Constraint("Vertical", 5, 2, 6, 2))
sketch15.addConstraint(Sketcher.Constraint("Vertical", 4, 2, 7, 2))
sketch15.addConstraint(Sketcher.Constraint("Vertical", 11, 2, 12, 2))
sketch15.addConstraint(Sketcher.Constraint("Vertical", 10, 2, 13, 2))
sketch15.addConstraint(Sketcher.Constraint("Vertical", 17, 2, 18, 2))
sketch15.addConstraint(Sketcher.Constraint("Vertical", 16, 2, 19, 2))
sketch15.addConstraint(Sketcher.Constraint("Equal", 3, 6))
sketch15.addConstraint(Sketcher.Constraint("Equal", 9, 12))
sketch15.addConstraint(Sketcher.Constraint("Equal", 15, 18))
sketch15.addConstraint(Sketcher.Constraint("Angle", 1, Q("149.999999 deg")))
sketch15.addConstraint(Sketcher.Constraint("DistanceX", 1, 2, -1, 1, 12.0))
sketch15.addConstraint(Sketcher.Constraint("DistanceY", 6, 2, 0, 2, 8.0))
sketch15.addConstraint(Sketcher.Constraint("DistanceY", 12, 2, 6, 2, 8.0))
sketch15.addConstraint(Sketcher.Constraint("DistanceY", 18, 2, 12, 2, 8.0))
sketch15.addConstraint(Sketcher.Constraint("DistanceX", 0, 2, -1, 1, 8.6))
sketch15.addConstraint(Sketcher.Constraint("DistanceY", 18, 1, 18, 2, 3.925982))
sketch15.addConstraint(Sketcher.Constraint("DistanceY", -1, 1, 0, 2, 52.962991))
pocket11 = body.newObject("PartDesign::Pocket", "Pocket010")
pocket11.Profile = sketch15
pocket11.Length = 4
pocket11.Reversed = True

doc.recompute()
